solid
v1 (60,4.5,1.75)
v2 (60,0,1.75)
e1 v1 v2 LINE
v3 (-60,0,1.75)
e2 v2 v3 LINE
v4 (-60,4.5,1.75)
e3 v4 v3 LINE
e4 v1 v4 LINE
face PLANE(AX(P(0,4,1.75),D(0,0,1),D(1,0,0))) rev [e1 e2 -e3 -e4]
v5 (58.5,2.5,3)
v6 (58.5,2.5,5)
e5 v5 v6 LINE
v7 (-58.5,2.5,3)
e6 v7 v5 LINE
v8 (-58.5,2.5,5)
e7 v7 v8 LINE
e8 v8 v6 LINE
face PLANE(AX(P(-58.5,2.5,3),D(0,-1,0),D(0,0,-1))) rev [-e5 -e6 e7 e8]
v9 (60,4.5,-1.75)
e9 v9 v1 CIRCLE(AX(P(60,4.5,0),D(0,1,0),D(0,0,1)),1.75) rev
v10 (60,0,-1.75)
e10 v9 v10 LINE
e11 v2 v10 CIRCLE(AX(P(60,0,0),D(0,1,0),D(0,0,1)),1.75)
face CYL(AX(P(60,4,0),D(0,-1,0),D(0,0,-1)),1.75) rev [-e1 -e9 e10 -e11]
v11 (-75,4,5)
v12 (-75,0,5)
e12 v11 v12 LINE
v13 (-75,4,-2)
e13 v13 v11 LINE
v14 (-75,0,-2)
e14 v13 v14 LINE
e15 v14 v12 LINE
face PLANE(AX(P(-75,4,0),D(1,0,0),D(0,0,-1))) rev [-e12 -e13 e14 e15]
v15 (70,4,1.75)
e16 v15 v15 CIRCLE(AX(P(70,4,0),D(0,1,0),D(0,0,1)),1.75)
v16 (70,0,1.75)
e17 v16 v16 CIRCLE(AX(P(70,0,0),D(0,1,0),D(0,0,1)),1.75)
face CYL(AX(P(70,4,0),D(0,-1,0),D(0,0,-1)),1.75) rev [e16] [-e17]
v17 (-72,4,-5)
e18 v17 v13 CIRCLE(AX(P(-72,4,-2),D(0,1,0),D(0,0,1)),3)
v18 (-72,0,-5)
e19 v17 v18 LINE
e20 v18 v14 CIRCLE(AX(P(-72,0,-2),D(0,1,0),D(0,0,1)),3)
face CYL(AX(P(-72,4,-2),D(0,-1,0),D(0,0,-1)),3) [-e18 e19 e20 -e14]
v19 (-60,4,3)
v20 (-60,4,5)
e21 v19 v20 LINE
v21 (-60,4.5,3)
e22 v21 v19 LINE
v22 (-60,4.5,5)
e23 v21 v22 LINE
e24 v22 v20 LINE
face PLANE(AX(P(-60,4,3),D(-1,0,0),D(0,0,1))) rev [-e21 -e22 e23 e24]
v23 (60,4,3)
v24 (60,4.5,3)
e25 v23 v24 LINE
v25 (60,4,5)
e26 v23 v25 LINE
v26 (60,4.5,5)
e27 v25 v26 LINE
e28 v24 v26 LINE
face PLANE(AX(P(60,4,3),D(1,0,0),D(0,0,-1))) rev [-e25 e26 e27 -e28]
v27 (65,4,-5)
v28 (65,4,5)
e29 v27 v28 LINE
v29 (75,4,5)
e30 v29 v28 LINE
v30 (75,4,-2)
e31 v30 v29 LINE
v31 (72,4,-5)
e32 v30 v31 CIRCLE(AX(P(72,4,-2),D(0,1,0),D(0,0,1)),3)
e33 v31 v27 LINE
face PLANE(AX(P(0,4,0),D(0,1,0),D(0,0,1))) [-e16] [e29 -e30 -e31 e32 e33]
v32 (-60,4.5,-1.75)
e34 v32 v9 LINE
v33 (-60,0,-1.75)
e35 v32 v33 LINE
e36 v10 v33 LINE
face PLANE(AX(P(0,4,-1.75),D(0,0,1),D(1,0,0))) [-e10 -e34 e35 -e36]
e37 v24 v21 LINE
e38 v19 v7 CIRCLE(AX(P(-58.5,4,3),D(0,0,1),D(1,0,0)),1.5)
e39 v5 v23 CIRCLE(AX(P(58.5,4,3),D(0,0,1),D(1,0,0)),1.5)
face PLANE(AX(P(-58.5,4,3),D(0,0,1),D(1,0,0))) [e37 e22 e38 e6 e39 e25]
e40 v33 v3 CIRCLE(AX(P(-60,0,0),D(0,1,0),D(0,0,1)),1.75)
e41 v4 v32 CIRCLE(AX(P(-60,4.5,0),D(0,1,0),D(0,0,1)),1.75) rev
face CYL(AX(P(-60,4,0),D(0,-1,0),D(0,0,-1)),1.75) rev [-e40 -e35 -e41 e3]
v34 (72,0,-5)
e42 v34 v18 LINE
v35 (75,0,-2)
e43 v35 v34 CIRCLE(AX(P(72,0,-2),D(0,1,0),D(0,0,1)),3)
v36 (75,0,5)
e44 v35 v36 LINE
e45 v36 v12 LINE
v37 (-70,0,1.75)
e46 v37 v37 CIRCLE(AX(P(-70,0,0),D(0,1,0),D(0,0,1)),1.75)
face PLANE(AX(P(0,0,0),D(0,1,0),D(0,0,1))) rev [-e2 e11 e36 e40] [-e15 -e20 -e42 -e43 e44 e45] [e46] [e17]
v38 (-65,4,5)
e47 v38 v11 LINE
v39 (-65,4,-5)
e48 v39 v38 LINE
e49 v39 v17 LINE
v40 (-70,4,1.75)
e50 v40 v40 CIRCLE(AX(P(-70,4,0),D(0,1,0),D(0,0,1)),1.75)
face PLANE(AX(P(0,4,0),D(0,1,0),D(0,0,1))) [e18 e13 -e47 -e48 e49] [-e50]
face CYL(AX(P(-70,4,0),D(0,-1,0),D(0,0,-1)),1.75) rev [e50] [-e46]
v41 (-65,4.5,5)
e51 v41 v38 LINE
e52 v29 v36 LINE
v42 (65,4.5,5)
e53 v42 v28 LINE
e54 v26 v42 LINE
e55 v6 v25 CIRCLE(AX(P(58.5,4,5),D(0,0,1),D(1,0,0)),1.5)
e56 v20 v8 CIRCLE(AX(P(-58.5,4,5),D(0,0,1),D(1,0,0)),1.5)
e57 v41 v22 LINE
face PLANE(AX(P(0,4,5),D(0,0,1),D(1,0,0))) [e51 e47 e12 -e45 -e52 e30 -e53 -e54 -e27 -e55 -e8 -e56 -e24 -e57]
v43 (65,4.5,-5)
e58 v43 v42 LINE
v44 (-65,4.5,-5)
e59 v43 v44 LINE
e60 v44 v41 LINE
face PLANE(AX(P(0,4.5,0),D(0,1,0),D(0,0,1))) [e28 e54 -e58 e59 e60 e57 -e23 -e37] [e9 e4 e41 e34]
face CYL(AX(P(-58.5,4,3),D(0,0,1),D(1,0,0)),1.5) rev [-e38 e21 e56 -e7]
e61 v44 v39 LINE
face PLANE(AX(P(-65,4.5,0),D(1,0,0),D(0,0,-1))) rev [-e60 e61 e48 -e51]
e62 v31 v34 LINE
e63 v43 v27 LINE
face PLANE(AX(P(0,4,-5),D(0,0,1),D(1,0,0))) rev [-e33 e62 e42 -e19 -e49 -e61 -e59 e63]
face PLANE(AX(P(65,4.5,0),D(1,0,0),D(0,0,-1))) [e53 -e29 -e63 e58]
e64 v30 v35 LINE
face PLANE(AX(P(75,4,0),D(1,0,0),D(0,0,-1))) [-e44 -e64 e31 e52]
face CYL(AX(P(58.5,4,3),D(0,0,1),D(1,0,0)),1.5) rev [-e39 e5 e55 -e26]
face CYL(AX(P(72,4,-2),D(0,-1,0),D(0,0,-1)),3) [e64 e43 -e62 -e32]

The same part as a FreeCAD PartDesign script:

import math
import FreeCAD as App
import Part
import Sketcher

doc = App.newDocument("Part")
body = doc.addObject("PartDesign::Body", "Body")

# Sketch on XZ plane
sketch1 = body.newObject("Sketcher::SketchObject", "Sketch")
sketch1.AttachmentSupport = (doc.getObject("XZ_Plane"), [""])
sketch1.MapMode = "FlatFace"
sketch1.addGeometry(Part.ArcOfCircle(Part.Circle(App.Vector(72, -2, 0), App.Vector(0, 0, 1), 3), math.radians(-90), math.radians(0)), False)
sketch1.addGeometry(Part.LineSegment(App.Vector(72, -5, 0), App.Vector(-72, -5, 0)), False)
sketch1.addGeometry(Part.ArcOfCircle(Part.Circle(App.Vector(-72, -2, 0), App.Vector(0, 0, 1), 3), math.radians(180), math.radians(270)), False)
sketch1.addGeometry(Part.LineSegment(App.Vector(-75, -2, 0), App.Vector(-75, 5, 0)), False)
sketch1.addGeometry(Part.LineSegment(App.Vector(-75, 5, 0), App.Vector(75, 5, 0)), False)
sketch1.addGeometry(Part.LineSegment(App.Vector(75, 5, 0), App.Vector(75, -2, 0)), False)
sketch1.addGeometry(Part.Circle(App.Vector(-70, 0, 0), App.Vector(0, 0, 1), 1.8), False)
sketch1.addGeometry(Part.ArcOfCircle(Part.Circle(App.Vector(60, 0, 0), App.Vector(0, 0, 1), 1.8), math.radians(-90), math.radians(0)), False)
sketch1.addGeometry(Part.ArcOfCircle(Part.Circle(App.Vector(60, 0, 0), App.Vector(0, 0, 1), 1.8), math.radians(0), math.radians(90)), False)
sketch1.addGeometry(Part.LineSegment(App.Vector(60, 1.8, 0), App.Vector(-60, 1.8, 0)), False)
sketch1.addGeometry(Part.ArcOfCircle(Part.Circle(App.Vector(-60, 0, 0), App.Vector(0, 0, 1), 1.8), math.radians(90), math.radians(270)), False)
sketch1.addGeometry(Part.LineSegment(App.Vector(-60, -1.8, 0), App.Vector(60, -1.8, 0)), False)
sketch1.addGeometry(Part.Circle(App.Vector(70, 0, 0), App.Vector(0, 0, 1), 1.8), False)
sketch1.addConstraint(Sketcher.Constraint("Tangent", 0, 1, 1, 1))
sketch1.addConstraint(Sketcher.Constraint("Tangent", 1, 2, 2, 2))
sketch1.addConstraint(Sketcher.Constraint("Tangent", 2, 1, 3, 1))
sketch1.addConstraint(Sketcher.Constraint("Coincident", 3, 2, 4, 1))
sketch1.addConstraint(Sketcher.Constraint("Coincident", 4, 2, 5, 1))
sketch1.addConstraint(Sketcher.Constraint("Tangent", 5, 2, 0, 2))
sketch1.addConstraint(Sketcher.Constraint("Tangent", 7, 2, 8, 1))
sketch1.addConstraint(Sketcher.Constraint("Tangent", 8, 2, 9, 1))
sketch1.addConstraint(Sketcher.Constraint("Tangent", 9, 2, 10, 1))
sketch1.addConstraint(Sketcher.Constraint("Tangent", 10, 2, 11, 1))
sketch1.addConstraint(Sketcher.Constraint("Tangent", 11, 2, 7, 1))
sketch1.addConstraint(Sketcher.Constraint("Horizontal", 1))
sketch1.addConstraint(Sketcher.Constraint("Vertical", 3))
sketch1.addConstraint(Sketcher.Constraint("Horizontal", 4))
sketch1.addConstraint(Sketcher.Constraint("Vertical", 5))
sketch1.addConstraint(Sketcher.Constraint("Horizontal", 9))
sketch1.addConstraint(Sketcher.Constraint("Horizontal", 11))
sketch1.addConstraint(Sketcher.Constraint("Equal", 0, 2))
sketch1.addConstraint(Sketcher.Constraint("Equal", 6, 7))
sketch1.addConstraint(Sketcher.Constraint("Equal", 7, 8))
sketch1.addConstraint(Sketcher.Constraint("Equal", 10, 12))
sketch1.addConstraint(Sketcher.Constraint("Symmetric", 7, 3, 10, 3, -1, 1))
sketch1.addConstraint(Sketcher.Constraint("Symmetric", 6, 3, 12, 3, -1, 1))
sketch1.addConstraint(Sketcher.Constraint("PointOnObject", 6, 3, -1))
sketch1.addConstraint(Sketcher.Constraint("PointOnObject", 7, 2, -1))
sketch1.addConstraint(Sketcher.Constraint("Radius", 0, 3.0))
sketch1.addConstraint(Sketcher.Constraint("Diameter", 6, 3.5))
sketch1.addConstraint(Sketcher.Constraint("DistanceX", 1, 2, 1, 1, 144.0))
sketch1.addConstraint(Sketcher.Constraint("DistanceX", 9, 2, 9, 1, 120.0))
sketch1.addConstraint(Sketcher.Constraint("DistanceY", 3, 1, 3, 2, 7.0))
sketch1.addConstraint(Sketcher.Constraint("DistanceX", -1, 1, 0, 3, 72.0))
sketch1.addConstraint(Sketcher.Constraint("DistanceY", 0, 3, -1, 1, 2.0))
sketch1.addConstraint(Sketcher.Constraint("DistanceX", 6, 3, -1, 1, 70.0))
pad1 = body.newObject("PartDesign::Pad", "Pad")
pad1.Profile = sketch1
pad1.Length = 4
pad1.Reversed = True

# Sketch on XZ plane
sketch2 = body.newObject("Sketcher::SketchObject", "Sketch001")
sketch2.AttachmentSupport = (doc.getObject("XZ_Plane"), [""])
sketch2.MapMode = "FlatFace"
sketch2.AttachmentOffset = App.Placement(App.Vector(0, 0, -4), App.Rotation())
sketch2.addGeometry(Part.LineSegment(App.Vector(-65, -5, 0), App.Vector(-65, 5, 0)), False)
sketch2.addGeometry(Part.LineSegment(App.Vector(-65, 5, 0), App.Vector(65, 5, 0)), False)
sketch2.addGeometry(Part.LineSegment(App.Vector(65, 5, 0), App.Vector(65, -5, 0)), False)
sketch2.addGeometry(Part.LineSegment(App.Vector(65, -5, 0), App.Vector(-65, -5, 0)), False)
sketch2.addGeometry(Part.ArcOfCircle(Part.Circle(App.Vector(-60, 0, 0), App.Vector(0, 0, 1), 1.8), math.radians(90), math.radians(270)), False)
sketch2.addGeometry(Part.LineSegment(App.Vector(-60, -1.8, 0), App.Vector(60, -1.8, 0)), False)
sketch2.addGeometry(Part.ArcOfCircle(Part.Circle(App.Vector(60, 0, 0), App.Vector(0, 0, 1), 1.8), math.radians(-90), math.radians(90)), False)
sketch2.addGeometry(Part.LineSegment(App.Vector(60, 1.8, 0), App.Vector(-60, 1.8, 0)), False)
sketch2.addConstraint(Sketcher.Constraint("Coincident", 0, 2, 1, 1))
sketch2.addConstraint(Sketcher.Constraint("Coincident", 1, 2, 2, 1))
sketch2.addConstraint(Sketcher.Constraint("Coincident", 2, 2, 3, 1))
sketch2.addConstraint(Sketcher.Constraint("Coincident", 3, 2, 0, 1))
sketch2.addConstraint(Sketcher.Constraint("Tangent", 4, 2, 5, 1))
sketch2.addConstraint(Sketcher.Constraint("Tangent", 5, 2, 6, 1))
sketch2.addConstraint(Sketcher.Constraint("Tangent", 6, 2, 7, 1))
sketch2.addConstraint(Sketcher.Constraint("Tangent", 7, 2, 4, 1))
sketch2.addConstraint(Sketcher.Constraint("Vertical", 0))
sketch2.addConstraint(Sketcher.Constraint("Horizontal", 1))
sketch2.addConstraint(Sketcher.Constraint("Vertical", 2))
sketch2.addConstraint(Sketcher.Constraint("Horizontal", 3))
sketch2.addConstraint(Sketcher.Constraint("Horizontal", 5))
sketch2.addConstraint(Sketcher.Constraint("Horizontal", 7))
sketch2.addConstraint(Sketcher.Constraint("Symmetric", 4, 3, 6, 3, -1, 1))
sketch2.addConstraint(Sketcher.Constraint("Symmetric", 0, 2, 2, 2, -1, 1))
sketch2.addConstraint(Sketcher.Constraint("DistanceX", 1, 1, 1, 2, 130.0))
sketch2.addConstraint(Sketcher.Constraint("DistanceX", 5, 1, 5, 2, 120.0))
sketch2.addConstraint(Sketcher.Constraint("DistanceY", 0, 1, 0, 2, 10.0))
sketch2.addConstraint(Sketcher.Constraint("Radius", 4, 1.75))
pad2 = body.newObject("PartDesign::Pad", "Pad001")
pad2.Profile = sketch2
pad2.Length = 0.5
pad2.Reversed = True

# Sketch on XY plane
sketch3 = body.newObject("Sketcher::SketchObject", "Sketch002")
sketch3.AttachmentSupport = (doc.getObject("XY_Plane"), [""])
sketch3.MapMode = "FlatFace"
sketch3.AttachmentOffset = App.Placement(App.Vector(0, 0, 5), App.Rotation())
sketch3.addGeometry(Part.LineSegment(App.Vector(-58.5, 2.5, 0), App.Vector(58.5, 2.5, 0)), False)
sketch3.addGeometry(Part.ArcOfCircle(Part.Circle(App.Vector(58.5, 4, 0), App.Vector(0, 0, 1), 1.5), math.radians(-90), math.radians(0)), False)
sketch3.addGeometry(Part.LineSegment(App.Vector(60, 4, 0), App.Vector(60, 4.5, 0)), False)
sketch3.addGeometry(Part.LineSegment(App.Vector(60, 4.5, 0), App.Vector(-60, 4.5, 0)), False)
sketch3.addGeometry(Part.LineSegment(App.Vector(-60, 4.5, 0), App.Vector(-60, 4, 0)), False)
sketch3.addGeometry(Part.ArcOfCircle(Part.Circle(App.Vector(-58.5, 4, 0), App.Vector(0, 0, 1), 1.5), math.radians(180), math.radians(270)), False)
sketch3.addConstraint(Sketcher.Constraint("Tangent", 0, 2, 1, 1))
sketch3.addConstraint(Sketcher.Constraint("Tangent", 1, 2, 2, 1))
sketch3.addConstraint(Sketcher.Constraint("Coincident", 2, 2, 3, 1))
sketch3.addConstraint(Sketcher.Constraint("Coincident", 3, 2, 4, 1))
sketch3.addConstraint(Sketcher.Constraint("Tangent", 4, 2, 5, 1))
sketch3.addConstraint(Sketcher.Constraint("Tangent", 5, 2, 0, 1))
sketch3.addConstraint(Sketcher.Constraint("Horizontal", 0))
sketch3.addConstraint(Sketcher.Constraint("Vertical", 2))
sketch3.addConstraint(Sketcher.Constraint("Horizontal", 3))
sketch3.addConstraint(Sketcher.Constraint("Vertical", 4))
sketch3.addConstraint(Sketcher.Constraint("Equal", 1, 5))
sketch3.addConstraint(Sketcher.Constraint("Radius", 1, 1.5))
sketch3.addConstraint(Sketcher.Constraint("DistanceX", 0, 1, 0, 2, 117.0))
sketch3.addConstraint(Sketcher.Constraint("DistanceY", 2, 1, 2, 2, 0.5))
sketch3.addConstraint(Sketcher.Constraint("DistanceY", -1, 1, 1, 3, 4.0))
sketch3.addConstraint(Sketcher.Constraint("DistanceX", -1, 1, 1, 2, 60.0))
pocket1 = body.newObject("PartDesign::Pocket", "Pocket")
pocket1.Profile = sketch3
pocket1.Length = 2

doc.recompute()
